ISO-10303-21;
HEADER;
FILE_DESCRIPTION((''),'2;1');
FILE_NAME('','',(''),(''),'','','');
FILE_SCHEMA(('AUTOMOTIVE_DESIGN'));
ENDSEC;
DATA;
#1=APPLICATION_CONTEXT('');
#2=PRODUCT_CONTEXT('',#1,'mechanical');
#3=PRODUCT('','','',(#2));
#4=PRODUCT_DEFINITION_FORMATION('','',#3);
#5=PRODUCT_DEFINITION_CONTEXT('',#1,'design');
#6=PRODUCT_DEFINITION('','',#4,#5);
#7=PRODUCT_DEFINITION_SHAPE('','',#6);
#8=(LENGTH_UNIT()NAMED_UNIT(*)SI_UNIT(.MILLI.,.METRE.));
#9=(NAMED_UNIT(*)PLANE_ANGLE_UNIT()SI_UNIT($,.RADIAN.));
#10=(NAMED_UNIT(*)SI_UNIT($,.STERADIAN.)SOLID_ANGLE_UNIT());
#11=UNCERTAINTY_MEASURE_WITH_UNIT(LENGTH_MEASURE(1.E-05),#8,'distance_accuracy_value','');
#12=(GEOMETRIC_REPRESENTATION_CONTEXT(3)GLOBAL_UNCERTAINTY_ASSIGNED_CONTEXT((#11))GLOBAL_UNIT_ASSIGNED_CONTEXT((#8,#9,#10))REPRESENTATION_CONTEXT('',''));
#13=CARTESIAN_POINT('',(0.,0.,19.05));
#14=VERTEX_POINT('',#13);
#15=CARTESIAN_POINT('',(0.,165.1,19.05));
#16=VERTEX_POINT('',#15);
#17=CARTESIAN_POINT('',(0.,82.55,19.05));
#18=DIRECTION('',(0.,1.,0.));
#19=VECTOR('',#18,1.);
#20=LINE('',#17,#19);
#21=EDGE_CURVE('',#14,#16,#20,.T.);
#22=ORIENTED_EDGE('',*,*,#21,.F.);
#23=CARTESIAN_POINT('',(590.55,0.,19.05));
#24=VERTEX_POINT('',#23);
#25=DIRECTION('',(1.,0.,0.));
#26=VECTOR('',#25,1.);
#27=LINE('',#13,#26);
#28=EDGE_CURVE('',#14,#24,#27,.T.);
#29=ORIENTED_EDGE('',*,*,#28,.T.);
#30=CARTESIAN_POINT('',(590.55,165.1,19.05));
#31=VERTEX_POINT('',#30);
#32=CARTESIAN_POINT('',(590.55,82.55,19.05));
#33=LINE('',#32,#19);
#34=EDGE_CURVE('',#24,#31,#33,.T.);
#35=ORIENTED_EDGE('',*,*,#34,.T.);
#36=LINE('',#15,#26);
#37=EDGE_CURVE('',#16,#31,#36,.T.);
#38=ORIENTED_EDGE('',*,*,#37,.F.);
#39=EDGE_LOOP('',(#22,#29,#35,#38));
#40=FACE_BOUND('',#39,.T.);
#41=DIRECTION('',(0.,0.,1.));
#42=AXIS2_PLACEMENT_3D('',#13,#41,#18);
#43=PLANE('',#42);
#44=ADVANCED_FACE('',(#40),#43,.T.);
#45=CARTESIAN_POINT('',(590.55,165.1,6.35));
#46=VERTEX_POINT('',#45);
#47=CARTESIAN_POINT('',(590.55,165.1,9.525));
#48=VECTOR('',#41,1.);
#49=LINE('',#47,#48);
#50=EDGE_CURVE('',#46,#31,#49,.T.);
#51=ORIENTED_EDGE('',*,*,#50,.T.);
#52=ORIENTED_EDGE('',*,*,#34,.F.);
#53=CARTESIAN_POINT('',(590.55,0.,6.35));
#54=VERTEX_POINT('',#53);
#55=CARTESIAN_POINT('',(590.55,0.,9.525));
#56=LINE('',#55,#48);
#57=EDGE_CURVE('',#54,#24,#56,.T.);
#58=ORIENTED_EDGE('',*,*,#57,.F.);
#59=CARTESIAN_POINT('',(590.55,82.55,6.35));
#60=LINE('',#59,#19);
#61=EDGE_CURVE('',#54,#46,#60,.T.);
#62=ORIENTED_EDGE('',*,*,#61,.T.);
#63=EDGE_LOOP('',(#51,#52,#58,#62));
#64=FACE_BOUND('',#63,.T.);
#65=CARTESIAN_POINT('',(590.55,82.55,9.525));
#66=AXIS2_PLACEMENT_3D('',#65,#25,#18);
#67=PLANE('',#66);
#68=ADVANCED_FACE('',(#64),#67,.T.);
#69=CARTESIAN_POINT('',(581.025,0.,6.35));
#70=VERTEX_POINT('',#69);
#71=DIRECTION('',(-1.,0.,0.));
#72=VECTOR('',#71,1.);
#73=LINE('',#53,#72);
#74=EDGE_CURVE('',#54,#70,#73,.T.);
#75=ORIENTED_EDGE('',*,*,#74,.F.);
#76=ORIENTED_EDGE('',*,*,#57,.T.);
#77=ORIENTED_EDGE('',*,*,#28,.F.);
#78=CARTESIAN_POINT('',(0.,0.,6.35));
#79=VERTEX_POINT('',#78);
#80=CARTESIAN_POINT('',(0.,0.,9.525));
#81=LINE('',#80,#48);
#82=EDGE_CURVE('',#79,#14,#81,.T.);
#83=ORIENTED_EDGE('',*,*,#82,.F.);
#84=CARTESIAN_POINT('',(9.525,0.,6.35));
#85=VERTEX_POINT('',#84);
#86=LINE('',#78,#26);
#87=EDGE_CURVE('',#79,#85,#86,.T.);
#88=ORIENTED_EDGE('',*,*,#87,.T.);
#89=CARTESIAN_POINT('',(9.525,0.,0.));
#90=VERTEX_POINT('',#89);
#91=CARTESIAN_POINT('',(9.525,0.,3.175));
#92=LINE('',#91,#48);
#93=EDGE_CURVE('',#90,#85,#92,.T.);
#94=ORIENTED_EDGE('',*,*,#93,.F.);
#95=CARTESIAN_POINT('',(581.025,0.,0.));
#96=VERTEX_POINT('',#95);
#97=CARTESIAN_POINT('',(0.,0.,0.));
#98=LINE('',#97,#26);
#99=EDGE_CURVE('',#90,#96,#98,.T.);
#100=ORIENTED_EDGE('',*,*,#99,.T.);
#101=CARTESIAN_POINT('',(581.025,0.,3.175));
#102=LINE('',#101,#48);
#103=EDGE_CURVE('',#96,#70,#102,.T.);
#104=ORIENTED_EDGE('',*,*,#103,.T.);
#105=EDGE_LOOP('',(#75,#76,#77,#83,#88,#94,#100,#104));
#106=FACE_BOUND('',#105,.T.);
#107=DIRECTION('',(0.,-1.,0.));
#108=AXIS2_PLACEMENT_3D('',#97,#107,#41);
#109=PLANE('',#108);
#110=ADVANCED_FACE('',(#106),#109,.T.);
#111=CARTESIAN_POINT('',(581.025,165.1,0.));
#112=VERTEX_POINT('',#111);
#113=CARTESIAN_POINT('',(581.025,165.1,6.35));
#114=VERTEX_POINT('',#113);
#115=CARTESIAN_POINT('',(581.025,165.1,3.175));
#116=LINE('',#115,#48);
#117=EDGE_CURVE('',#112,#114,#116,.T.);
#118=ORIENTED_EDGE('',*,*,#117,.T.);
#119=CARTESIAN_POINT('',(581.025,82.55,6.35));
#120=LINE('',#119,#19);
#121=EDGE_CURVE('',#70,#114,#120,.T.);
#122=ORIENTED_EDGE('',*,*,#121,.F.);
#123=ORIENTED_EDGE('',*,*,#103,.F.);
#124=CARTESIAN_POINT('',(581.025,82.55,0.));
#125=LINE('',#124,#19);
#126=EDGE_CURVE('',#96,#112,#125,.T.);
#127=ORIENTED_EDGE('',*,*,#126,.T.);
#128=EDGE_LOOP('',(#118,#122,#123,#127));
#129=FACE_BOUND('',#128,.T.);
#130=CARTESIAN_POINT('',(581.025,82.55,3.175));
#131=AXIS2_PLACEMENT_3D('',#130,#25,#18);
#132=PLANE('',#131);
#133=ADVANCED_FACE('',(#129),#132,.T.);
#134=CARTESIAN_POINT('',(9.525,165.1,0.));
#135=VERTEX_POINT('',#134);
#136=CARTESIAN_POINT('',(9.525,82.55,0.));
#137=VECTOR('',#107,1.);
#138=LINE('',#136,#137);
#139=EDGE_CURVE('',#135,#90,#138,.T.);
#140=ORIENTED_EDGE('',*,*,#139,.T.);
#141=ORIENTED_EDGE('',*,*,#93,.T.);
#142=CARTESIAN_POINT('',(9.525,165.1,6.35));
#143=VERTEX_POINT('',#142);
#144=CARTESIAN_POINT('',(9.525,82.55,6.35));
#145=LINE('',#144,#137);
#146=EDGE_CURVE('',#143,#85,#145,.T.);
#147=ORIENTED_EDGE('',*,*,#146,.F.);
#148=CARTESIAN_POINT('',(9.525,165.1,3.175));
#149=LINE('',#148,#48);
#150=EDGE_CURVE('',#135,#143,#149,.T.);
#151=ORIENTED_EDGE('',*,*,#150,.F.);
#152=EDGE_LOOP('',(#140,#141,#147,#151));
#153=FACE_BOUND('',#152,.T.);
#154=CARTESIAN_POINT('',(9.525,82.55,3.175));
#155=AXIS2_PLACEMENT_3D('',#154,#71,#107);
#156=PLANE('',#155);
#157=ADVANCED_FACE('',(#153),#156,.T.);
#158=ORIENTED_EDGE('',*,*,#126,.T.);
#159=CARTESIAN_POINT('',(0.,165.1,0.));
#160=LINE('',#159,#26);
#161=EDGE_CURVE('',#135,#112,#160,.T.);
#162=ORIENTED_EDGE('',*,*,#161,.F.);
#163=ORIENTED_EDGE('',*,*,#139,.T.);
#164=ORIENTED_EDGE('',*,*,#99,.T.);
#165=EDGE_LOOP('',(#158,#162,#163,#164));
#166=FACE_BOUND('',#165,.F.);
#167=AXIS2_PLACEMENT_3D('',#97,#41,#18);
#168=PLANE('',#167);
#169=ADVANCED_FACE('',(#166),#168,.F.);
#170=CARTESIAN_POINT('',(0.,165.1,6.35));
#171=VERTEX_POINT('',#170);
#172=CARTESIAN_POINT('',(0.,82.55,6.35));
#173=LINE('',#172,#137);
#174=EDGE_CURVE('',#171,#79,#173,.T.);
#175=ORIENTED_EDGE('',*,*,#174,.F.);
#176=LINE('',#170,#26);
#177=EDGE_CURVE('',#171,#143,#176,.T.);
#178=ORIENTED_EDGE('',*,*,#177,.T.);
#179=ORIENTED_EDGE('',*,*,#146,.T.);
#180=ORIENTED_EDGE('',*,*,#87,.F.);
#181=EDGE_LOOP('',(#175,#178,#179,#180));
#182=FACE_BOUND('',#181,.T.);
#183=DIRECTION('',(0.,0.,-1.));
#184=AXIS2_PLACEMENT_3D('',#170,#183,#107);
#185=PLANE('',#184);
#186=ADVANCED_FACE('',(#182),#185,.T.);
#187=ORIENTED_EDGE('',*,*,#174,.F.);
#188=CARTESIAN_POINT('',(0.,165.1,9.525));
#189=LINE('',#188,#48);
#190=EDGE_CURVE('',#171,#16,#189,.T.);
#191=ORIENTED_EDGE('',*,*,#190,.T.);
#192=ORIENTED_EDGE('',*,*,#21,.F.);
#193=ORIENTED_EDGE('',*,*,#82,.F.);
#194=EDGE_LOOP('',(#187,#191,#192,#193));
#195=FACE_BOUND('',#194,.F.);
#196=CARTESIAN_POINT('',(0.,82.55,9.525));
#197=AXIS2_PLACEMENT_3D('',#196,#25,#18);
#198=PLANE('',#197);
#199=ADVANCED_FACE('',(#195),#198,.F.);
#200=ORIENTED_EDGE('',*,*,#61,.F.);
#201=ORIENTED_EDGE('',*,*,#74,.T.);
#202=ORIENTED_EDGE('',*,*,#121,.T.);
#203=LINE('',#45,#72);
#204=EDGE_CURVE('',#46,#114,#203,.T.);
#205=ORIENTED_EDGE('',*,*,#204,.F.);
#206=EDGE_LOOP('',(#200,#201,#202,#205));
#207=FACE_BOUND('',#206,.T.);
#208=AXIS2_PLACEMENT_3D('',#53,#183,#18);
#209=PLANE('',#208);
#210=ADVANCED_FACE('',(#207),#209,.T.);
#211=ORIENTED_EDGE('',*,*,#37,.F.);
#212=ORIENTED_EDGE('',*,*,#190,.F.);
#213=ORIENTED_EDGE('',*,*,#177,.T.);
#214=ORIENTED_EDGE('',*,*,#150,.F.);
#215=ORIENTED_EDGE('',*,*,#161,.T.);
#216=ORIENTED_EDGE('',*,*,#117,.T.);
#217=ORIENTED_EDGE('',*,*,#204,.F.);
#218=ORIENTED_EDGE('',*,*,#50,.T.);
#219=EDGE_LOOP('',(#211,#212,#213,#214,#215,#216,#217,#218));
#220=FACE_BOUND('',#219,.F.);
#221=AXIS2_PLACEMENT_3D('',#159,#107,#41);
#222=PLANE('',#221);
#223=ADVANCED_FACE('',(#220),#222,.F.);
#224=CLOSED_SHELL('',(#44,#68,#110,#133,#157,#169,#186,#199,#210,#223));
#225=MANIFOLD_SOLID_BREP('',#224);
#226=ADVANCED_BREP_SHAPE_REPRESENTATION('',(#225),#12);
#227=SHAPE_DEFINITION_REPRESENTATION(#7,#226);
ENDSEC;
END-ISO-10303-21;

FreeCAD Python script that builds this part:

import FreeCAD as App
import Part
import Sketcher

V = App.Vector
Q = App.Units.Quantity


def add_polygon(sketch, points):
    """Adds a closed chain of lines whose ends are joined by coincident constraints."""
    first, n = sketch.GeometryCount, len(points)
    for a, b in zip(points, points[1:] + points[:1]):
        sketch.addGeometry(Part.LineSegment(App.Vector(*a, 0), App.Vector(*b, 0)), False)
    for i in range(n):
        sketch.addConstraint(Sketcher.Constraint("Coincident", first + i, 2, first + (i + 1) % n, 1))

doc = App.newDocument("Part")
params = doc.addObject("Spreadsheet::Sheet", "Params")
for row, (alias, value) in enumerate([
    ("sketch1_width", "6.5 in"),
    ("sketch1_height", "0.75 in"),
    ("pad1_length", "23.25 in"),
    ("sketch2_width", "6.5 in"),
    ("sketch2_height", "0.25 in"),
    ("pocket1_length", "0.375 in"),
    ("sketch3_width", "6.5 in"),
    ("sketch3_height", "0.25 in"),
    ("pocket2_length", "0.375 in"),
], start=1):
    params.set(f"A{row}", alias)
    params.set(f"B{row}", "=" + value)
    params.setAlias(f"B{row}", alias)

body = doc.addObject("PartDesign::Body", "Body")

# Sketch on YZ plane
sketch1 = doc.addObject("Sketcher::SketchObject", "Sketch")
body.addObject(sketch1)
sketch1.AttachmentSupport = (doc.YZ_Plane, [""])
sketch1.MapMode = "FlatFace"
add_polygon(sketch1, [(0, 19), (0, 0), (165, 0), (165, 19)])  # lines 0-3
sketch1.addConstraint(Sketcher.Constraint("Vertical", 0))
sketch1.addConstraint(Sketcher.Constraint("Horizontal", 1))
sketch1.addConstraint(Sketcher.Constraint("Vertical", 2))
sketch1.addConstraint(Sketcher.Constraint("Horizontal", 3))
sketch1.addConstraint(Sketcher.Constraint("Coincident", 0, 2, -1, 1))
sketch1.addConstraint(Sketcher.Constraint("DistanceX", 1, 1, 1, 2, Q("6.5 in")))
sketch1.addConstraint(Sketcher.Constraint("DistanceY", 0, 2, 0, 1, Q("0.75 in")))
sketch1.setExpression("Constraints[9]", "Params.sketch1_width")
sketch1.setExpression("Constraints[10]", "Params.sketch1_height")
pad1 = doc.addObject("PartDesign::Pad", "Pad")
body.addObject(pad1)
pad1.Profile = sketch1
pad1.setExpression("Length", "Params.pad1_length")

# Sketch on YZ plane
sketch2 = doc.addObject("Sketcher::SketchObject", "Sketch001")
body.addObject(sketch2)
sketch2.AttachmentSupport = (doc.YZ_Plane, [""])
sketch2.MapMode = "FlatFace"
sketch2.AttachmentOffset = App.Placement(V(0, 0, 23.25 * 25.4), App.Rotation())
add_polygon(sketch2, [(0, 6), (0, 0), (165, 0), (165, 6)])  # lines 0-3
sketch2.addConstraint(Sketcher.Constraint("Vertical", 0))
sketch2.addConstraint(Sketcher.Constraint("Horizontal", 1))
sketch2.addConstraint(Sketcher.Constraint("Vertical", 2))
sketch2.addConstraint(Sketcher.Constraint("Horizontal", 3))
sketch2.addConstraint(Sketcher.Constraint("Coincident", 0, 2, -1, 1))
sketch2.addConstraint(Sketcher.Constraint("DistanceX", 1, 1, 1, 2, Q("6.5 in")))
sketch2.addConstraint(Sketcher.Constraint("DistanceY", 0, 2, 0, 1, Q("0.25 in")))
sketch2.setExpression("Constraints[9]", "Params.sketch2_width")
sketch2.setExpression("Constraints[10]", "Params.sketch2_height")
pocket1 = doc.addObject("PartDesign::Pocket", "Pocket")
body.addObject(pocket1)
pocket1.Profile = sketch2
pocket1.setExpression("Length", "Params.pocket1_length")

# Sketch on YZ plane
sketch3 = doc.addObject("Sketcher::SketchObject", "Sketch002")
body.addObject(sketch3)
sketch3.AttachmentSupport = (doc.YZ_Plane, [""])
sketch3.MapMode = "FlatFace"
add_polygon(sketch3, [(165, 6), (165, 0), (0, 0), (0, 6)])  # lines 0-3
sketch3.addConstraint(Sketcher.Constraint("Vertical", 0))
sketch3.addConstraint(Sketcher.Constraint("Horizontal", 1))
sketch3.addConstraint(Sketcher.Constraint("Vertical", 2))
sketch3.addConstraint(Sketcher.Constraint("Horizontal", 3))
sketch3.addConstraint(Sketcher.Constraint("Coincident", 1, 2, -1, 1))
sketch3.addConstraint(Sketcher.Constraint("DistanceX", 1, 2, 1, 1, Q("6.5 in")))
sketch3.addConstraint(Sketcher.Constraint("DistanceY", 0, 2, 0, 1, Q("0.25 in")))
sketch3.setExpression("Constraints[9]", "Params.sketch3_width")
sketch3.setExpression("Constraints[10]", "Params.sketch3_height")
pocket2 = doc.addObject("PartDesign::Pocket", "Pocket001")
body.addObject(pocket2)
pocket2.Profile = sketch3
pocket2.setExpression("Length", "Params.pocket2_length")
pocket2.Reversed = True

doc.recompute()
